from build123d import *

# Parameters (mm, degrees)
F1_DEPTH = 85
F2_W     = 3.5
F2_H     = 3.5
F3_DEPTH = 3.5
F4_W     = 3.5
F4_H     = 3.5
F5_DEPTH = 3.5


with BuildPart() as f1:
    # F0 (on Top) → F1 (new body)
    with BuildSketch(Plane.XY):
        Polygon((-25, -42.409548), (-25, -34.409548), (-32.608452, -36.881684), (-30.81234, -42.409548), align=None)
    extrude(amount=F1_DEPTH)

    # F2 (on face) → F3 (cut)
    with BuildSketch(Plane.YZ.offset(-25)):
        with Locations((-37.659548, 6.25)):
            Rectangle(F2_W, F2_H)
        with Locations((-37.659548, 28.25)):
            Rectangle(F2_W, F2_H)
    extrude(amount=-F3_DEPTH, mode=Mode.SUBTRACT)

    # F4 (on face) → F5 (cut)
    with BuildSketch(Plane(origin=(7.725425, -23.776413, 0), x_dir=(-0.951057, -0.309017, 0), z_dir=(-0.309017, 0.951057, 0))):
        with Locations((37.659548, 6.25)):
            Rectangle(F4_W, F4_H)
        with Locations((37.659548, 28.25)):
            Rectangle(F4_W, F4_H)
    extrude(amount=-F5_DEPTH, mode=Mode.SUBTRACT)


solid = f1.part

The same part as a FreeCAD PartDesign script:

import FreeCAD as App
import Part
import Sketcher

V = App.Vector
Q = App.Units.Quantity

doc = App.newDocument("Part")
body = doc.addObject("PartDesign::Body", "Body")

# Sketch on XY plane
sketch1 = body.newObject("Sketcher::SketchObject", "Sketch")
sketch1.AttachmentSupport = (doc.getObject("XY_Plane"), [""])
sketch1.MapMode = "FlatFace"
sketch1.addGeometry(Part.LineSegment(V(-25, -42, 0), V(-25, -34, 0)), False)
sketch1.addGeometry(Part.LineSegment(V(-25, -34, 0), V(-33, -37, 0)), False)
sketch1.addGeometry(Part.LineSegment(V(-33, -37, 0), V(-31, -42, 0)), False)
sketch1.addGeometry(Part.LineSegment(V(-31, -42, 0), V(-25, -42, 0)), False)
sketch1.addConstraint(Sketcher.Constraint("Coincident", 0, 2, 1, 1))
sketch1.addConstraint(Sketcher.Constraint("Coincident", 1, 2, 2, 1))
sketch1.addConstraint(Sketcher.Constraint("Coincident", 2, 2, 3, 1))
sketch1.addConstraint(Sketcher.Constraint("Coincident", 3, 2, 0, 1))
sketch1.addConstraint(Sketcher.Constraint("Vertical", 0))
sketch1.addConstraint(Sketcher.Constraint("Horizontal", 3))
sketch1.addConstraint(Sketcher.Constraint("Perpendicular", 1, 2))
sketch1.addConstraint(Sketcher.Constraint("DistanceY", 0, 1, 0, 2, Q("8 mm")))
sketch1.addConstraint(Sketcher.Constraint("Angle", 1, Q("-161.999999 deg")))
sketch1.addConstraint(Sketcher.Constraint("Distance", 1, Q("8 mm")))
sketch1.addConstraint(Sketcher.Constraint("DistanceX", 0, 2, -1, 1, Q("25 mm")))
sketch1.addConstraint(Sketcher.Constraint("DistanceY", 0, 2, -1, 1, Q("34.409548 mm")))
pad1 = body.newObject("PartDesign::Pad", "Pad")
pad1.Profile = sketch1
pad1.Length = 85

# Sketch on YZ plane
sketch2 = body.newObject("Sketcher::SketchObject", "Sketch001")
sketch2.AttachmentSupport = (doc.getObject("YZ_Plane"), [""])
sketch2.MapMode = "FlatFace"
sketch2.AttachmentOffset = App.Placement(V(0, 0, -25), App.Rotation())
sketch2.addGeometry(Part.LineSegment(V(-39.4, 8, 0), V(-39.4, 4.5, 0)), False)
sketch2.addGeometry(Part.LineSegment(V(-39.4, 4.5, 0), V(-35.9, 4.5, 0)), False)
sketch2.addGeometry(Part.LineSegment(V(-35.9, 4.5, 0), V(-35.9, 8, 0)), False)
sketch2.addGeometry(Part.LineSegment(V(-35.9, 8, 0), V(-39.4, 8, 0)), False)
sketch2.addGeometry(Part.LineSegment(V(-39.4, 30, 0), V(-39.4, 26.5, 0)), False)
sketch2.addGeometry(Part.LineSegment(V(-39.4, 26.5, 0), V(-35.9, 26.5, 0)), False)
sketch2.addGeometry(Part.LineSegment(V(-35.9, 26.5, 0), V(-35.9, 30, 0)), False)
sketch2.addGeometry(Part.LineSegment(V(-35.9, 30, 0), V(-39.4, 30, 0)), False)
sketch2.addConstraint(Sketcher.Constraint("Coincident", 0, 2, 1, 1))
sketch2.addConstraint(Sketcher.Constraint("Coincident", 1, 2, 2, 1))
sketch2.addConstraint(Sketcher.Constraint("Coincident", 2, 2, 3, 1))
sketch2.addConstraint(Sketcher.Constraint("Coincident", 3, 2, 0, 1))
sketch2.addConstraint(Sketcher.Constraint("Coincident", 4, 2, 5, 1))
sketch2.addConstraint(Sketcher.Constraint("Coincident", 5, 2, 6, 1))
sketch2.addConstraint(Sketcher.Constraint("Coincident", 6, 2, 7, 1))
sketch2.addConstraint(Sketcher.Constraint("Coincident", 7, 2, 4, 1))
sketch2.addConstraint(Sketcher.Constraint("Vertical", 0))
sketch2.addConstraint(Sketcher.Constraint("Horizontal", 1))
sketch2.addConstraint(Sketcher.Constraint("Vertical", 2))
sketch2.addConstraint(Sketcher.Constraint("Horizontal", 3))
sketch2.addConstraint(Sketcher.Constraint("Vertical", 4))
sketch2.addConstraint(Sketcher.Constraint("Horizontal", 5))
sketch2.addConstraint(Sketcher.Constraint("Vertical", 6))
sketch2.addConstraint(Sketcher.Constraint("Horizontal", 7))
sketch2.addConstraint(Sketcher.Constraint("Vertical", 3, 2, 4, 2))
sketch2.addConstraint(Sketcher.Constraint("Vertical", 2, 2, 5, 2))
sketch2.addConstraint(Sketcher.Constraint("Equal", 7, 0))
sketch2.addConstraint(Sketcher.Constraint("Equal", 2, 4))
sketch2.addConstraint(Sketcher.Constraint("DistanceX", 1, 1, 1, 2, Q("3.5 mm")))
sketch2.addConstraint(Sketcher.Constraint("DistanceY", -1, 1, 2, 2, Q("8 mm")))
sketch2.addConstraint(Sketcher.Constraint("DistanceY", -1, 1, 6, 2, Q("30 mm")))
sketch2.addConstraint(Sketcher.Constraint("DistanceX", 0, 2, -1, 1, Q("39.409548 mm")))
pocket1 = body.newObject("PartDesign::Pocket", "Pocket")
pocket1.Profile = sketch2
pocket1.Length = 3.5

# Sketch on an angled plane
sketch3 = body.newObject("Sketcher::SketchObject", "Sketch002")
sketch3.Placement = App.Placement(V(7.725425, -23.776413, 0), App.Rotation(V(-0.951056561, -0.309016857, 0), V(0, 0, 1), V(-0.309016857, 0.951056561, 0), "ZXY"))
sketch3.addGeometry(Part.LineSegment(V(35.9, 8, 0), V(35.9, 4.5, 0)), False)
sketch3.addGeometry(Part.LineSegment(V(35.9, 4.5, 0), V(39.4, 4.5, 0)), False)
sketch3.addGeometry(Part.LineSegment(V(39.4, 4.5, 0), V(39.4, 8, 0)), False)
sketch3.addGeometry(Part.LineSegment(V(39.4, 8, 0), V(35.9, 8, 0)), False)
sketch3.addGeometry(Part.LineSegment(V(35.9, 30, 0), V(35.9, 26.5, 0)), False)
sketch3.addGeometry(Part.LineSegment(V(35.9, 26.5, 0), V(39.4, 26.5, 0)), False)
sketch3.addGeometry(Part.LineSegment(V(39.4, 26.5, 0), V(39.4, 30, 0)), False)
sketch3.addGeometry(Part.LineSegment(V(39.4, 30, 0), V(35.9, 30, 0)), False)
sketch3.addConstraint(Sketcher.Constraint("Coincident", 0, 2, 1, 1))
sketch3.addConstraint(Sketcher.Constraint("Coincident", 1, 2, 2, 1))
sketch3.addConstraint(Sketcher.Constraint("Coincident", 2, 2, 3, 1))
sketch3.addConstraint(Sketcher.Constraint("Coincident", 3, 2, 0, 1))
sketch3.addConstraint(Sketcher.Constraint("Coincident", 4, 2, 5, 1))
sketch3.addConstraint(Sketcher.Constraint("Coincident", 5, 2, 6, 1))
sketch3.addConstraint(Sketcher.Constraint("Coincident", 6, 2, 7, 1))
sketch3.addConstraint(Sketcher.Constraint("Coincident", 7, 2, 4, 1))
sketch3.addConstraint(Sketcher.Constraint("Vertical", 0))
sketch3.addConstraint(Sketcher.Constraint("Horizontal", 1))
sketch3.addConstraint(Sketcher.Constraint("Vertical", 2))
sketch3.addConstraint(Sketcher.Constraint("Horizontal", 3))
sketch3.addConstraint(Sketcher.Constraint("Vertical", 4))
sketch3.addConstraint(Sketcher.Constraint("Horizontal", 5))
sketch3.addConstraint(Sketcher.Constraint("Vertical", 6))
sketch3.addConstraint(Sketcher.Constraint("Horizontal", 7))
sketch3.addConstraint(Sketcher.Constraint("Vertical", 3, 2, 4, 2))
sketch3.addConstraint(Sketcher.Constraint("Vertical", 2, 2, 5, 2))
sketch3.addConstraint(Sketcher.Constraint("Equal", 7, 0))
sketch3.addConstraint(Sketcher.Constraint("Equal", 2, 4))
sketch3.addConstraint(Sketcher.Constraint("DistanceX", 1, 1, 1, 2, Q("3.5 mm")))
sketch3.addConstraint(Sketcher.Constraint("DistanceY", -1, 1, 2, 2, Q("8 mm")))
sketch3.addConstraint(Sketcher.Constraint("DistanceY", -1, 1, 6, 2, Q("30 mm")))
sketch3.addConstraint(Sketcher.Constraint("DistanceX", -1, 1, 0, 2, Q("35.909548 mm")))
pocket2 = body.newObject("PartDesign::Pocket", "Pocket001")
pocket2.Profile = sketch3
pocket2.Length = 3.5

doc.recompute()
